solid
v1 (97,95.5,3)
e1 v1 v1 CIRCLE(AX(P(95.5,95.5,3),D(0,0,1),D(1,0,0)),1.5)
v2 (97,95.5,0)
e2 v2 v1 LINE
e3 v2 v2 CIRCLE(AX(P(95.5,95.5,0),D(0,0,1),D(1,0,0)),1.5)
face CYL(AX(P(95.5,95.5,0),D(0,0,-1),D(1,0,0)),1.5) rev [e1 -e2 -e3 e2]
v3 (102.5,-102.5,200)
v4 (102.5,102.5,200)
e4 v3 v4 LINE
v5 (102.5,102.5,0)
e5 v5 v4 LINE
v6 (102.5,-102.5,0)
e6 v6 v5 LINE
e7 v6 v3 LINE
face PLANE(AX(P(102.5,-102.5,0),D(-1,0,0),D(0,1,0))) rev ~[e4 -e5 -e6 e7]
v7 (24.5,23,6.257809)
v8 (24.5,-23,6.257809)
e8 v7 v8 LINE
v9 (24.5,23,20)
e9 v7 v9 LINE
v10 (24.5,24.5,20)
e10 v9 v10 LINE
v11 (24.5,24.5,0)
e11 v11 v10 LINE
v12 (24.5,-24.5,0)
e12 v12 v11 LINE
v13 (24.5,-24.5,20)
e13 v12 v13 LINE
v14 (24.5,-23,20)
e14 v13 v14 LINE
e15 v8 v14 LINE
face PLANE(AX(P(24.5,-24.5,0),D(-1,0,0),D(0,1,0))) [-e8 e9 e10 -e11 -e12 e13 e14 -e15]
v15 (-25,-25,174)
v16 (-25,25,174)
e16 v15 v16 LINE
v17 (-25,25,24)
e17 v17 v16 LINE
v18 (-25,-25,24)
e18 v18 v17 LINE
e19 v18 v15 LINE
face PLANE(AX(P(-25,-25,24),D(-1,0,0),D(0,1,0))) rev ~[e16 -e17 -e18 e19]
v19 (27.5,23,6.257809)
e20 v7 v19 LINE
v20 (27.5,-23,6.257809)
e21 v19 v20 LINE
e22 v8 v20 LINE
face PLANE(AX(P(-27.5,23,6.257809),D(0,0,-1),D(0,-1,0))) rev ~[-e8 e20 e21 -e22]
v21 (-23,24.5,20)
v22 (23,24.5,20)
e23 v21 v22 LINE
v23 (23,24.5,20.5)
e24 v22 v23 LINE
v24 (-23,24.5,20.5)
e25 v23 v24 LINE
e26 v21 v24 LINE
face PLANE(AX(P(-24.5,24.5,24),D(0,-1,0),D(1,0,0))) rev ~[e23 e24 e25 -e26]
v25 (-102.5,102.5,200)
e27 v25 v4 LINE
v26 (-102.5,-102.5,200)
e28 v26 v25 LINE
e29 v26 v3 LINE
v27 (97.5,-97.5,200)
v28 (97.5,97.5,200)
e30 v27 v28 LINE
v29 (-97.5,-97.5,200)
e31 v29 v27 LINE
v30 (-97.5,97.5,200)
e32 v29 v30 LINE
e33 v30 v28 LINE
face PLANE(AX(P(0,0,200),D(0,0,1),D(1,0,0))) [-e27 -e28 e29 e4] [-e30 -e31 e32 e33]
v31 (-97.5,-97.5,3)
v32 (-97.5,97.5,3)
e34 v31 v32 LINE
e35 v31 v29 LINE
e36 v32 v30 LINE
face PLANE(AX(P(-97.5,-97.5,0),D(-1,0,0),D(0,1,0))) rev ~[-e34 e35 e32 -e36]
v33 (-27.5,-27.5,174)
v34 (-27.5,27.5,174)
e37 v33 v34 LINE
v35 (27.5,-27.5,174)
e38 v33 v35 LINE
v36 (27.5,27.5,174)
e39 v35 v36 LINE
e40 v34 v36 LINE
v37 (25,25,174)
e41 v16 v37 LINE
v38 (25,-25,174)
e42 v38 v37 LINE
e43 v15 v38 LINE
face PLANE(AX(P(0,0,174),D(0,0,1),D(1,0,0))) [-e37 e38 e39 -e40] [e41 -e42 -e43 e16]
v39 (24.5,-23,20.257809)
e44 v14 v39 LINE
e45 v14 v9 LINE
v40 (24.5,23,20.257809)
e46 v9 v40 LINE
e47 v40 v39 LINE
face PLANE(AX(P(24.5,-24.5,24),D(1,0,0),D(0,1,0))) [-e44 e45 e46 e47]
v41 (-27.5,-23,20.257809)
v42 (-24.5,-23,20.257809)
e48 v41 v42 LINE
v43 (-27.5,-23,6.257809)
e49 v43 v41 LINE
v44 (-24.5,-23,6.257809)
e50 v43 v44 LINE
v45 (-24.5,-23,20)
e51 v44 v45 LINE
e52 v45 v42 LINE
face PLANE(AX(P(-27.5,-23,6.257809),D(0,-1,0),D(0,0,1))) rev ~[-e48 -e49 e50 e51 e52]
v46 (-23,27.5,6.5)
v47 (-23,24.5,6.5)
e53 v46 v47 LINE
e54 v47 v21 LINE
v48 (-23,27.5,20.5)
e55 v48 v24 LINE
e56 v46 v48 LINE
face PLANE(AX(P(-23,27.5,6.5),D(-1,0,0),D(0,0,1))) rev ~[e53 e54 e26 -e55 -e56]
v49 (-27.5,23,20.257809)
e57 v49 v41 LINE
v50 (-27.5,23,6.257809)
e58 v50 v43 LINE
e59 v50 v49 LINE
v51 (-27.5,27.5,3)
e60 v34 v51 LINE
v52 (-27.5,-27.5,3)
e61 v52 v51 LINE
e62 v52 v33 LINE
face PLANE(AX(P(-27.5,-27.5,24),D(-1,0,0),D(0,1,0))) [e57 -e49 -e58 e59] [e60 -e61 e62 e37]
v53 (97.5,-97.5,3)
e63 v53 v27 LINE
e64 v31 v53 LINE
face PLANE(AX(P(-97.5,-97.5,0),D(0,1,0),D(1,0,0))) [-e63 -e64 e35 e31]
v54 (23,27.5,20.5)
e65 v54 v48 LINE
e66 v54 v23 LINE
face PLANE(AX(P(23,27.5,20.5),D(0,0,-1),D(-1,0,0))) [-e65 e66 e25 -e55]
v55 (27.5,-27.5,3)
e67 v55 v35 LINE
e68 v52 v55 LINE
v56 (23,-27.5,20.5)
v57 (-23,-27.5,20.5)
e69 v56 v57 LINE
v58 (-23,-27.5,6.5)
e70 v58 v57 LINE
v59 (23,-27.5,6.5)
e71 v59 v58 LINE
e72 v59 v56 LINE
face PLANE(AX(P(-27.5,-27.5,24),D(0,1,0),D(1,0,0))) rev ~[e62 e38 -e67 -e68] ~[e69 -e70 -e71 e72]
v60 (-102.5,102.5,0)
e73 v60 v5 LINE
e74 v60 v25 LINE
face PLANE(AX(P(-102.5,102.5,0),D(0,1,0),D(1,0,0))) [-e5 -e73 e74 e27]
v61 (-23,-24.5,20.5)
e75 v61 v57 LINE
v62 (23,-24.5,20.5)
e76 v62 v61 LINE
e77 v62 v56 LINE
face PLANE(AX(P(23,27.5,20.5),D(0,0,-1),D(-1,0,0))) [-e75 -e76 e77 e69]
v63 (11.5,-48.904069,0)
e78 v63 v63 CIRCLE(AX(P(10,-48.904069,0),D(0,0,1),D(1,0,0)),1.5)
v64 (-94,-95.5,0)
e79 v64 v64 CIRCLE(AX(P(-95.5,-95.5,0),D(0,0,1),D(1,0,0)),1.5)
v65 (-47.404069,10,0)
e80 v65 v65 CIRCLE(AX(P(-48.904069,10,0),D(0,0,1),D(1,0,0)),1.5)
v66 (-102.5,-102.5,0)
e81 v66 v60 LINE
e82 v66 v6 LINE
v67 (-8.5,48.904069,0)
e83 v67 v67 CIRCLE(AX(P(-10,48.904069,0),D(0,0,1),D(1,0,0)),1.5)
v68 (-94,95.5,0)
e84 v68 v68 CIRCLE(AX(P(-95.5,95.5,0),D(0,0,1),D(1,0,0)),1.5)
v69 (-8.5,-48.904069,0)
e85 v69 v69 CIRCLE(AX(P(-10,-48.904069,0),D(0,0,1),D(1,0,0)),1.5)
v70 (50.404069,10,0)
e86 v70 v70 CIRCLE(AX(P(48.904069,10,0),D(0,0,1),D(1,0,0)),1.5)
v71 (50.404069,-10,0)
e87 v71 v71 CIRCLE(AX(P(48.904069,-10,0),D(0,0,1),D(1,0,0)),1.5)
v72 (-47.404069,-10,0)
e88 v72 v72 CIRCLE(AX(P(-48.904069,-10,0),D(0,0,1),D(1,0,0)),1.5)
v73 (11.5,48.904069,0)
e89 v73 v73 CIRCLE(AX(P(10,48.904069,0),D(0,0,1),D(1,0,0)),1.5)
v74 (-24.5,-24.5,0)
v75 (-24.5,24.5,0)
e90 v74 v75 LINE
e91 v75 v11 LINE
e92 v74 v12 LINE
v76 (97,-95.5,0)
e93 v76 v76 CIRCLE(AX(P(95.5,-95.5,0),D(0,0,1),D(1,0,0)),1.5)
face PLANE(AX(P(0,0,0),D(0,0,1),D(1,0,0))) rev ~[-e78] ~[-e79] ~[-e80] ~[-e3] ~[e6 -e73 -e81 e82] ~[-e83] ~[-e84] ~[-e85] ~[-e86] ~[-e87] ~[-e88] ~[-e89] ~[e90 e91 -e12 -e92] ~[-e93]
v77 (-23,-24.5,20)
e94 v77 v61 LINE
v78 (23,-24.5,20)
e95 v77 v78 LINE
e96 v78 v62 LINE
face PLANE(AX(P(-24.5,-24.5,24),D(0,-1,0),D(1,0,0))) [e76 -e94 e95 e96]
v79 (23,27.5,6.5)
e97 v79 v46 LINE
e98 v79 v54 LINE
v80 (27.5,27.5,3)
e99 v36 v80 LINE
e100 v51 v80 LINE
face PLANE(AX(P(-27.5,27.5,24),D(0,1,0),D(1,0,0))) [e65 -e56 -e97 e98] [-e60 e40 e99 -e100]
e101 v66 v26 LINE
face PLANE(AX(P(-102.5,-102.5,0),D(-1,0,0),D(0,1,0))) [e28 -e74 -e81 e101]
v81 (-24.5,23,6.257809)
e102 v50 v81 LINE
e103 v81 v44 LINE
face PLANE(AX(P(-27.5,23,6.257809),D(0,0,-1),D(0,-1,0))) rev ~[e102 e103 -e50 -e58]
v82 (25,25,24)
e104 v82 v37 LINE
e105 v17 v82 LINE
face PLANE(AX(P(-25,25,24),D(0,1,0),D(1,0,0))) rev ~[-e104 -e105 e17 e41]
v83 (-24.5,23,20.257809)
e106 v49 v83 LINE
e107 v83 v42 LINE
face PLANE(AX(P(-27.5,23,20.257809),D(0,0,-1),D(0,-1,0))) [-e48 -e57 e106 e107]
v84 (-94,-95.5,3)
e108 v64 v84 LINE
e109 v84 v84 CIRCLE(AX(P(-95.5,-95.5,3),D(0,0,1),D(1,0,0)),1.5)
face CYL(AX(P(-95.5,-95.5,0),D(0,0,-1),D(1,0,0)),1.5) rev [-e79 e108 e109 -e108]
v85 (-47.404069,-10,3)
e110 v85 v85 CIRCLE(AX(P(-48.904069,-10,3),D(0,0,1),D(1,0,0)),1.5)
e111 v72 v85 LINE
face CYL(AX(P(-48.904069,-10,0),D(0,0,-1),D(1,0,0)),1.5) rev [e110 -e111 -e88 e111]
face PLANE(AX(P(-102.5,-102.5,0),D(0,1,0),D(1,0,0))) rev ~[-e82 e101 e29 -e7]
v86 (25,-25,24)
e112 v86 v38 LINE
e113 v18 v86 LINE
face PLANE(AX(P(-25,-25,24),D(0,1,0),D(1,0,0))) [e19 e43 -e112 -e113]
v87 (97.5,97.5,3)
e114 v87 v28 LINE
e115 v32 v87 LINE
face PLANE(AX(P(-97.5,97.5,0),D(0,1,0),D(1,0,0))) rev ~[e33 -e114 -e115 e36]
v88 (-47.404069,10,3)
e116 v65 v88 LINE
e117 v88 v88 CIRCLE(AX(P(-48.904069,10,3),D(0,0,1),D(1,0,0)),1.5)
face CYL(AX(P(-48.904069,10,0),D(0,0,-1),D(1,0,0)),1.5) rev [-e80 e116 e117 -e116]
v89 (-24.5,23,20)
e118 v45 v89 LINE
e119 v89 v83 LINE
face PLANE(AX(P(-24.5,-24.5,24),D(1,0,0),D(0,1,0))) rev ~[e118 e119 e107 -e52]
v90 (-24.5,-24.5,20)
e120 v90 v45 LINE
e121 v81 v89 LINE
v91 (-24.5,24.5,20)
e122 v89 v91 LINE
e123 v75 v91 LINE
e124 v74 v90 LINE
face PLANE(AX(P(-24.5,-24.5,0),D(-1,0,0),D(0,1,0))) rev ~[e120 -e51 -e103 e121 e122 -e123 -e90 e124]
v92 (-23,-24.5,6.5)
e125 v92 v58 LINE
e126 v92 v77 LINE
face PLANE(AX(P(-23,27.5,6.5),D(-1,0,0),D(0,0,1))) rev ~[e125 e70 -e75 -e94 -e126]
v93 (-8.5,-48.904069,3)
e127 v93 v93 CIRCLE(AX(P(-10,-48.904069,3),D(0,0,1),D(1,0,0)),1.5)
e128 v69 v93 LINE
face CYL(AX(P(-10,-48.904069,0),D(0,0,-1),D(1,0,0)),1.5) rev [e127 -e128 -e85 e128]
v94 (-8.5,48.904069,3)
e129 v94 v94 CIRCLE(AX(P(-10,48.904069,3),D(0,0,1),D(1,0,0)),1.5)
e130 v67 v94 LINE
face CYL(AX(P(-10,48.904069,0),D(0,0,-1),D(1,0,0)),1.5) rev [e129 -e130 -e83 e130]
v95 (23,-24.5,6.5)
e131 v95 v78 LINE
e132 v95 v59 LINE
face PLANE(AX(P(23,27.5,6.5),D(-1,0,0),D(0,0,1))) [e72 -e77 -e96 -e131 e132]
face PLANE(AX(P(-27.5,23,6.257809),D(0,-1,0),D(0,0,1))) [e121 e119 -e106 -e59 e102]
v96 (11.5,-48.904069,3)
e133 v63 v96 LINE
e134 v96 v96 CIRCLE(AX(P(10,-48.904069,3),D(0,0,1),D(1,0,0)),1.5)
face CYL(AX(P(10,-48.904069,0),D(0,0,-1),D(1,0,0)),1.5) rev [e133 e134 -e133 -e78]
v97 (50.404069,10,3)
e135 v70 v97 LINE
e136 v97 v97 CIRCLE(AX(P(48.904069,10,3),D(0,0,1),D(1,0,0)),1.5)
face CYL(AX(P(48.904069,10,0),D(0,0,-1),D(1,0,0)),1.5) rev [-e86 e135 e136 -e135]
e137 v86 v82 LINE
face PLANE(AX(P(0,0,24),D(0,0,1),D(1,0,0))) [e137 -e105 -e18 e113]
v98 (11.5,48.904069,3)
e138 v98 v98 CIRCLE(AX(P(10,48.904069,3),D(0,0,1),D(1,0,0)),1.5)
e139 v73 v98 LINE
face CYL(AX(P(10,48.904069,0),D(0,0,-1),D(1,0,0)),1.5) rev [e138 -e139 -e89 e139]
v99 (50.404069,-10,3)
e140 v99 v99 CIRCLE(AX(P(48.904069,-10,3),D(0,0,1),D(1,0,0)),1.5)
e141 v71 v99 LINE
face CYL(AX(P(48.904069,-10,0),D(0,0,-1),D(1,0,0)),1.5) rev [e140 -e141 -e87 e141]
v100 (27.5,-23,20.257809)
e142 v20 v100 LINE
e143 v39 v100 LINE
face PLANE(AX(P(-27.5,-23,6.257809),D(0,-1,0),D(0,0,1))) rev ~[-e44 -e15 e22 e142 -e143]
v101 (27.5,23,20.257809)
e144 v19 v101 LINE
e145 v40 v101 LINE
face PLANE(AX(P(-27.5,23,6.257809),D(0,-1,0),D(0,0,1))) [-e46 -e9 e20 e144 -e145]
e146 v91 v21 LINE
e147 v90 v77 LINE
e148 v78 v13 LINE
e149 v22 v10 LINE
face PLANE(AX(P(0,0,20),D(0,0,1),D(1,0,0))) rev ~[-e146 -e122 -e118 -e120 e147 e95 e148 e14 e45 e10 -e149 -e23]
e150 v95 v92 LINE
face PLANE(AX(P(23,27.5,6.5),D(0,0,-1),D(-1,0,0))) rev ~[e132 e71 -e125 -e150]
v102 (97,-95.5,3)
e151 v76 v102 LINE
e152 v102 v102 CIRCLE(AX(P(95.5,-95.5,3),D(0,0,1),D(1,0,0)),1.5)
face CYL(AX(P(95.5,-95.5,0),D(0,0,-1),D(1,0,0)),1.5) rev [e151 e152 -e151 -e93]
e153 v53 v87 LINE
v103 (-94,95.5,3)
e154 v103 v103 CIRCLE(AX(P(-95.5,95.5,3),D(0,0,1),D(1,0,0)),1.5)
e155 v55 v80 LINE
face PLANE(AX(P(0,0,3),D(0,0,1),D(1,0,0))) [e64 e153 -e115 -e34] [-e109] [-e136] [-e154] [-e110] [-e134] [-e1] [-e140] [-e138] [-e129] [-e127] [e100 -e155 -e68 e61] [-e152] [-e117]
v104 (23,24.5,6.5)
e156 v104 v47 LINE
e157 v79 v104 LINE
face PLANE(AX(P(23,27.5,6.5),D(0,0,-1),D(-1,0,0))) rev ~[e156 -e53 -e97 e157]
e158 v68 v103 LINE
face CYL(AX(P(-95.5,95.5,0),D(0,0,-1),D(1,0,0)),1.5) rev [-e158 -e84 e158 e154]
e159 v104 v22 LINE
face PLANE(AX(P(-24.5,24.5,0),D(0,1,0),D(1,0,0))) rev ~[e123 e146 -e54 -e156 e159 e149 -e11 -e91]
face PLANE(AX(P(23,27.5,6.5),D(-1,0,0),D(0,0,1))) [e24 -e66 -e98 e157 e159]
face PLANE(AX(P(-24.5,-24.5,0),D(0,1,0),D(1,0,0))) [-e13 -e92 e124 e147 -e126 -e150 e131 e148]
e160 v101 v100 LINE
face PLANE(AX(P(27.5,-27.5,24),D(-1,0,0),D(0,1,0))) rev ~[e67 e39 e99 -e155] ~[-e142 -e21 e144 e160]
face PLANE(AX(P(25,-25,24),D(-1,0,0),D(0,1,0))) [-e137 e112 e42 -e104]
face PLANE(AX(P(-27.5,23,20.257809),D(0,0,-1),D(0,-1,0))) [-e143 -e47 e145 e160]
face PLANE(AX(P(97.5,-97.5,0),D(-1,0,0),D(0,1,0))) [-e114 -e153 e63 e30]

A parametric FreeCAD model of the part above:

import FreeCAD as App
import Part
import Sketcher


def add_polygon(sketch, points):
    """Adds a closed chain of lines whose ends are joined by coincident constraints."""
    first, n = sketch.GeometryCount, len(points)
    for a, b in zip(points, points[1:] + points[:1]):
        sketch.addGeometry(Part.LineSegment(App.Vector(*a, 0), App.Vector(*b, 0)), False)
    for i in range(n):
        sketch.addConstraint(Sketcher.Constraint("Coincident", first + i, 2, first + (i + 1) % n, 1))

doc = App.newDocument("Part")
body = doc.addObject("PartDesign::Body", "Body")

sketch1 = body.newObject("Sketcher::SketchObject", "Sketch")
sketch1.AttachmentSupport = (doc.getObject("XY_Plane"), [""])
sketch1.MapMode = "FlatFace"
add_polygon(sketch1, [(-102, 102), (-102, -102), (102, -102), (102, 102)])
add_polygon(sketch1, [(98, -98), (-98, -98), (-98, 98), (98, 98)])
sketch1.addConstraint([
    Sketcher.Constraint("Vertical", 0),
    Sketcher.Constraint("Horizontal", 1),
    Sketcher.Constraint("Vertical", 2),
    Sketcher.Constraint("Horizontal", 3),
    Sketcher.Constraint("Horizontal", 4),
    Sketcher.Constraint("Vertical", 5),
    Sketcher.Constraint("Horizontal", 6),
    Sketcher.Constraint("Vertical", 7),
    Sketcher.Constraint("Symmetric", 0, 2, 2, 2, -1, 1),
    Sketcher.Constraint("Symmetric", 4, 2, 6, 2, -1, 1),
    Sketcher.Constraint("Equal", 3, 0),
    Sketcher.Constraint("Equal", 6, 5),
    Sketcher.Constraint("DistanceX", 1, 1, 1, 2, 205.0),
    Sketcher.Constraint("DistanceX", 4, 2, 4, 1, 195.0),
])
pad1 = body.newObject("PartDesign::Pad", "Pad")
pad1.Profile = sketch1
pad1.Length = 200

sketch2 = body.newObject("Sketcher::SketchObject", "Sketch001")
sketch2.AttachmentSupport = (doc.getObject("XY_Plane"), [""])
sketch2.MapMode = "FlatFace"
add_polygon(sketch2, [(-97.5, 97.5), (-97.5, -97.5), (97.5, -97.5), (97.5, 97.5)])
sketch2.addGeometry(Part.Circle(App.Vector(-95.5, -95.5, 0), App.Vector(0, 0, 1), 1.5), False)
sketch2.addGeometry(Part.Circle(App.Vector(-10, -48.9, 0), App.Vector(0, 0, 1), 1.5), False)
sketch2.addGeometry(Part.Circle(App.Vector(-48.9, -10, 0), App.Vector(0, 0, 1), 1.5), False)
sketch2.addGeometry(Part.Circle(App.Vector(10, -48.9, 0), App.Vector(0, 0, 1), 1.5), False)
sketch2.addGeometry(Part.Circle(App.Vector(95.5, -95.5, 0), App.Vector(0, 0, 1), 1.5), False)
sketch2.addGeometry(Part.Circle(App.Vector(48.9, -10, 0), App.Vector(0, 0, 1), 1.5), False)
sketch2.addGeometry(Part.Circle(App.Vector(-48.9, 10, 0), App.Vector(0, 0, 1), 1.5), False)
sketch2.addGeometry(Part.Circle(App.Vector(-95.5, 95.5, 0), App.Vector(0, 0, 1), 1.5), False)
sketch2.addGeometry(Part.Circle(App.Vector(-10, 48.9, 0), App.Vector(0, 0, 1), 1.5), False)
add_polygon(sketch2, [(27.5, -27.5), (-27.5, -27.5), (-27.5, 27.5), (27.5, 27.5)])
sketch2.addGeometry(Part.Circle(App.Vector(48.9, 10, 0), App.Vector(0, 0, 1), 1.5), False)
sketch2.addGeometry(Part.Circle(App.Vector(10, 48.9, 0), App.Vector(0, 0, 1), 1.5), False)
sketch2.addGeometry(Part.Circle(App.Vector(95.5, 95.5, 0), App.Vector(0, 0, 1), 1.5), False)
sketch2.addConstraint([
    Sketcher.Constraint("Vertical", 0),
    Sketcher.Constraint("Horizontal", 1),
    Sketcher.Constraint("Vertical", 2),
    Sketcher.Constraint("Horizontal", 3),
    Sketcher.Constraint("Horizontal", 13),
    Sketcher.Constraint("Vertical", 14),
    Sketcher.Constraint("Horizontal", 15),
    Sketcher.Constraint("Vertical", 16),
    Sketcher.Constraint("Equal", 4, 5),
    Sketcher.Constraint("Equal", 5, 6),
    Sketcher.Constraint("Equal", 6, 7),
    Sketcher.Constraint("Equal", 7, 8),
    Sketcher.Constraint("Equal", 8, 9),
    Sketcher.Constraint("Equal", 9, 10),
    Sketcher.Constraint("Equal", 10, 11),
    Sketcher.Constraint("Equal", 11, 12),
    Sketcher.Constraint("Equal", 12, 17),
    Sketcher.Constraint("Equal", 17, 18),
    Sketcher.Constraint("Equal", 18, 19),
    Sketcher.Constraint("Symmetric", 9, 3, 10, 3, -1, 1),
    Sketcher.Constraint("Symmetric", 8, 3, 11, 3, -1, 1),
    Sketcher.Constraint("Symmetric", 7, 3, 12, 3, -1, 1),
    Sketcher.Constraint("Symmetric", 6, 3, 17, 3, -1, 1),
    Sketcher.Constraint("Symmetric", 5, 3, 18, 3, -1, 1),
    Sketcher.Constraint("Symmetric", 4, 3, 19, 3, -1, 1),
    Sketcher.Constraint("Symmetric", 0, 2, 2, 2, -1, 1),
    Sketcher.Constraint("Symmetric", 13, 2, 15, 2, -1, 1),
    Sketcher.Constraint("Symmetric", 5, 3, 7, 3, -2),
    Sketcher.Constraint("Symmetric", 4, 3, 8, 3, -2),
    Sketcher.Constraint("Symmetric", 6, 3, 9, 3, -2),
    Sketcher.Constraint("Equal", 3, 0),
    Sketcher.Constraint("Equal", 15, 14),
    Sketcher.Constraint("Diameter", 4, 3.0),
    Sketcher.Constraint("DistanceX", 1, 1, 1, 2, 195.0),
    Sketcher.Constraint("DistanceX", 13, 2, 13, 1, 55.0),
    Sketcher.Constraint("DistanceX", 5, 3, -1, 1, 10.0),
    Sketcher.Constraint("DistanceY", 6, 3, -1, 1, 10.0),
    Sketcher.Constraint("DistanceX", 4, 3, 8, 3, 191.0),
    Sketcher.Constraint("DistanceY", 0, 2, 4, 3, 2.0),
    Sketcher.Constraint("DistanceY", 5, 3, -1, 1, 48.904069),
    Sketcher.Constraint("DistanceX", 6, 3, -1, 1, 48.904069),
])
pad2 = body.newObject("PartDesign::Pad", "Pad001")
pad2.Profile = sketch2
pad2.Length = 3

sketch3 = body.newObject("Sketcher::SketchObject", "Sketch002")
sketch3.AttachmentSupport = (doc.getObject("XY_Plane"), [""])
sketch3.MapMode = "FlatFace"
add_polygon(sketch3, [(-28, 28), (-28, -28), (28, -28), (28, 28)])
add_polygon(sketch3, [(24, -24), (-24, -24), (-24, 24), (24, 24)])
sketch3.addConstraint([
    Sketcher.Constraint("Vertical", 0),
    Sketcher.Constraint("Horizontal", 1),
    Sketcher.Constraint("Vertical", 2),
    Sketcher.Constraint("Horizontal", 3),
    Sketcher.Constraint("Horizontal", 4),
    Sketcher.Constraint("Vertical", 5),
    Sketcher.Constraint("Horizontal", 6),
    Sketcher.Constraint("Vertical", 7),
    Sketcher.Constraint("Symmetric", 0, 2, 2, 2, -1, 1),
    Sketcher.Constraint("Symmetric", 4, 2, 6, 2, -1, 1),
    Sketcher.Constraint("Equal", 3, 0),
    Sketcher.Constraint("Equal", 6, 5),
    Sketcher.Constraint("DistanceX", 1, 1, 1, 2, 55.0),
    Sketcher.Constraint("DistanceX", 4, 2, 4, 1, 49.0),
])
pad3 = body.newObject("PartDesign::Pad", "Pad002")
pad3.Profile = sketch3
pad3.Length = 24

sketch4 = body.newObject("Sketcher::SketchObject", "Sketch003")
sketch4.AttachmentSupport = (doc.getObject("YZ_Plane"), [""])
sketch4.MapMode = "FlatFace"
sketch4.AttachmentOffset = App.Placement(App.Vector(0, 0, -27.5), App.Rotation())
add_polygon(sketch4, [(23, 20), (23, 6), (-23, 6), (-23, 20)])
sketch4.addConstraint([
    Sketcher.Constraint("Vertical", 0),
    Sketcher.Constraint("Horizontal", 1),
    Sketcher.Constraint("Vertical", 2),
    Sketcher.Constraint("Horizontal", 3),
    Sketcher.Constraint("DistanceX", 1, 2, 1, 1, 46.0),
    Sketcher.Constraint("DistanceY", 0, 2, 0, 1, 14.0),
    Sketcher.Constraint("DistanceX", -1, 1, 0, 2, 23.0),
    Sketcher.Constraint("DistanceY", -1, 1, 0, 2, 6.257809),
])
pocket1 = body.newObject("PartDesign::Pocket", "Pocket")
pocket1.Profile = sketch4
pocket1.Length = 60
pocket1.Reversed = True

sketch5 = body.newObject("Sketcher::SketchObject", "Sketch004")
sketch5.AttachmentSupport = (doc.getObject("XZ_Plane"), [""])
sketch5.MapMode = "FlatFace"
sketch5.AttachmentOffset = App.Placement(App.Vector(0, 0, -27.5), App.Rotation())
add_polygon(sketch5, [(23, 20), (23, 6), (-23, 6), (-23, 20)])
sketch5.addConstraint([
    Sketcher.Constraint("Vertical", 0),
    Sketcher.Constraint("Horizontal", 1),
    Sketcher.Constraint("Vertical", 2),
    Sketcher.Constraint("Horizontal", 3),
    Sketcher.Constraint("DistanceX", 1, 2, 1, 1, 46.0),
    Sketcher.Constraint("DistanceY", 0, 2, 0, 1, 14.0),
    Sketcher.Constraint("DistanceX", -1, 1, 0, 2, 23.0),
    Sketcher.Constraint("DistanceY", -1, 1, 0, 2, 6.5),
])
pocket2 = body.newObject("PartDesign::Pocket", "Pocket001")
pocket2.Profile = sketch5
pocket2.Length = 60
pocket2.Reversed = True

sketch6 = body.newObject("Sketcher::SketchObject", "Sketch005")
sketch6.AttachmentSupport = (doc.getObject("XY_Plane"), [""])
sketch6.MapMode = "FlatFace"
sketch6.AttachmentOffset = App.Placement(App.Vector(0, 0, 24), App.Rotation())
add_polygon(sketch6, [(-24, 24), (-24, -24), (24, -24), (24, 24)])
sketch6.addConstraint([
    Sketcher.Constraint("Vertical", 0),
    Sketcher.Constraint("Horizontal", 1),
    Sketcher.Constraint("Vertical", 2),
    Sketcher.Constraint("Horizontal", 3),
    Sketcher.Constraint("Symmetric", 0, 2, 2, 2, -1, 1),
    Sketcher.Constraint("Equal", 3, 0),
    Sketcher.Constraint("DistanceX", 1, 1, 1, 2, 49.0),
])
pad4 = body.newObject("PartDesign::Pad", "Pad003")
pad4.Profile = sketch6
pad4.Length = 4
pad4.Reversed = True

sketch7 = body.newObject("Sketcher::SketchObject", "Sketch006")
sketch7.AttachmentSupport = (doc.getObject("XY_Plane"), [""])
sketch7.MapMode = "FlatFace"
sketch7.AttachmentOffset = App.Placement(App.Vector(0, 0, 24), App.Rotation())
add_polygon(sketch7, [(-28, 28), (-28, -28), (28, -28), (28, 28)])
add_polygon(sketch7, [(25, -25), (-25, -25), (-25, 25), (25, 25)])
sketch7.addConstraint([
    Sketcher.Constraint("Vertical", 0),
    Sketcher.Constraint("Horizontal", 1),
    Sketcher.Constraint("Vertical", 2),
    Sketcher.Constraint("Horizontal", 3),
    Sketcher.Constraint("Horizontal", 4),
    Sketcher.Constraint("Vertical", 5),
    Sketcher.Constraint("Horizontal", 6),
    Sketcher.Constraint("Vertical", 7),
    Sketcher.Constraint("Symmetric", 0, 2, 2, 2, -1, 1),
    Sketcher.Constraint("Symmetric", 4, 2, 6, 2, -1, 1),
    Sketcher.Constraint("Equal", 3, 0),
    Sketcher.Constraint("Equal", 6, 5),
    Sketcher.Constraint("DistanceX", 1, 1, 1, 2, 55.0),
    Sketcher.Constraint("DistanceX", 4, 2, 4, 1, 50.0),
])
pad5 = body.newObject("PartDesign::Pad", "Pad004")
pad5.Profile = sketch7
pad5.Length = 150

doc.recompute()
